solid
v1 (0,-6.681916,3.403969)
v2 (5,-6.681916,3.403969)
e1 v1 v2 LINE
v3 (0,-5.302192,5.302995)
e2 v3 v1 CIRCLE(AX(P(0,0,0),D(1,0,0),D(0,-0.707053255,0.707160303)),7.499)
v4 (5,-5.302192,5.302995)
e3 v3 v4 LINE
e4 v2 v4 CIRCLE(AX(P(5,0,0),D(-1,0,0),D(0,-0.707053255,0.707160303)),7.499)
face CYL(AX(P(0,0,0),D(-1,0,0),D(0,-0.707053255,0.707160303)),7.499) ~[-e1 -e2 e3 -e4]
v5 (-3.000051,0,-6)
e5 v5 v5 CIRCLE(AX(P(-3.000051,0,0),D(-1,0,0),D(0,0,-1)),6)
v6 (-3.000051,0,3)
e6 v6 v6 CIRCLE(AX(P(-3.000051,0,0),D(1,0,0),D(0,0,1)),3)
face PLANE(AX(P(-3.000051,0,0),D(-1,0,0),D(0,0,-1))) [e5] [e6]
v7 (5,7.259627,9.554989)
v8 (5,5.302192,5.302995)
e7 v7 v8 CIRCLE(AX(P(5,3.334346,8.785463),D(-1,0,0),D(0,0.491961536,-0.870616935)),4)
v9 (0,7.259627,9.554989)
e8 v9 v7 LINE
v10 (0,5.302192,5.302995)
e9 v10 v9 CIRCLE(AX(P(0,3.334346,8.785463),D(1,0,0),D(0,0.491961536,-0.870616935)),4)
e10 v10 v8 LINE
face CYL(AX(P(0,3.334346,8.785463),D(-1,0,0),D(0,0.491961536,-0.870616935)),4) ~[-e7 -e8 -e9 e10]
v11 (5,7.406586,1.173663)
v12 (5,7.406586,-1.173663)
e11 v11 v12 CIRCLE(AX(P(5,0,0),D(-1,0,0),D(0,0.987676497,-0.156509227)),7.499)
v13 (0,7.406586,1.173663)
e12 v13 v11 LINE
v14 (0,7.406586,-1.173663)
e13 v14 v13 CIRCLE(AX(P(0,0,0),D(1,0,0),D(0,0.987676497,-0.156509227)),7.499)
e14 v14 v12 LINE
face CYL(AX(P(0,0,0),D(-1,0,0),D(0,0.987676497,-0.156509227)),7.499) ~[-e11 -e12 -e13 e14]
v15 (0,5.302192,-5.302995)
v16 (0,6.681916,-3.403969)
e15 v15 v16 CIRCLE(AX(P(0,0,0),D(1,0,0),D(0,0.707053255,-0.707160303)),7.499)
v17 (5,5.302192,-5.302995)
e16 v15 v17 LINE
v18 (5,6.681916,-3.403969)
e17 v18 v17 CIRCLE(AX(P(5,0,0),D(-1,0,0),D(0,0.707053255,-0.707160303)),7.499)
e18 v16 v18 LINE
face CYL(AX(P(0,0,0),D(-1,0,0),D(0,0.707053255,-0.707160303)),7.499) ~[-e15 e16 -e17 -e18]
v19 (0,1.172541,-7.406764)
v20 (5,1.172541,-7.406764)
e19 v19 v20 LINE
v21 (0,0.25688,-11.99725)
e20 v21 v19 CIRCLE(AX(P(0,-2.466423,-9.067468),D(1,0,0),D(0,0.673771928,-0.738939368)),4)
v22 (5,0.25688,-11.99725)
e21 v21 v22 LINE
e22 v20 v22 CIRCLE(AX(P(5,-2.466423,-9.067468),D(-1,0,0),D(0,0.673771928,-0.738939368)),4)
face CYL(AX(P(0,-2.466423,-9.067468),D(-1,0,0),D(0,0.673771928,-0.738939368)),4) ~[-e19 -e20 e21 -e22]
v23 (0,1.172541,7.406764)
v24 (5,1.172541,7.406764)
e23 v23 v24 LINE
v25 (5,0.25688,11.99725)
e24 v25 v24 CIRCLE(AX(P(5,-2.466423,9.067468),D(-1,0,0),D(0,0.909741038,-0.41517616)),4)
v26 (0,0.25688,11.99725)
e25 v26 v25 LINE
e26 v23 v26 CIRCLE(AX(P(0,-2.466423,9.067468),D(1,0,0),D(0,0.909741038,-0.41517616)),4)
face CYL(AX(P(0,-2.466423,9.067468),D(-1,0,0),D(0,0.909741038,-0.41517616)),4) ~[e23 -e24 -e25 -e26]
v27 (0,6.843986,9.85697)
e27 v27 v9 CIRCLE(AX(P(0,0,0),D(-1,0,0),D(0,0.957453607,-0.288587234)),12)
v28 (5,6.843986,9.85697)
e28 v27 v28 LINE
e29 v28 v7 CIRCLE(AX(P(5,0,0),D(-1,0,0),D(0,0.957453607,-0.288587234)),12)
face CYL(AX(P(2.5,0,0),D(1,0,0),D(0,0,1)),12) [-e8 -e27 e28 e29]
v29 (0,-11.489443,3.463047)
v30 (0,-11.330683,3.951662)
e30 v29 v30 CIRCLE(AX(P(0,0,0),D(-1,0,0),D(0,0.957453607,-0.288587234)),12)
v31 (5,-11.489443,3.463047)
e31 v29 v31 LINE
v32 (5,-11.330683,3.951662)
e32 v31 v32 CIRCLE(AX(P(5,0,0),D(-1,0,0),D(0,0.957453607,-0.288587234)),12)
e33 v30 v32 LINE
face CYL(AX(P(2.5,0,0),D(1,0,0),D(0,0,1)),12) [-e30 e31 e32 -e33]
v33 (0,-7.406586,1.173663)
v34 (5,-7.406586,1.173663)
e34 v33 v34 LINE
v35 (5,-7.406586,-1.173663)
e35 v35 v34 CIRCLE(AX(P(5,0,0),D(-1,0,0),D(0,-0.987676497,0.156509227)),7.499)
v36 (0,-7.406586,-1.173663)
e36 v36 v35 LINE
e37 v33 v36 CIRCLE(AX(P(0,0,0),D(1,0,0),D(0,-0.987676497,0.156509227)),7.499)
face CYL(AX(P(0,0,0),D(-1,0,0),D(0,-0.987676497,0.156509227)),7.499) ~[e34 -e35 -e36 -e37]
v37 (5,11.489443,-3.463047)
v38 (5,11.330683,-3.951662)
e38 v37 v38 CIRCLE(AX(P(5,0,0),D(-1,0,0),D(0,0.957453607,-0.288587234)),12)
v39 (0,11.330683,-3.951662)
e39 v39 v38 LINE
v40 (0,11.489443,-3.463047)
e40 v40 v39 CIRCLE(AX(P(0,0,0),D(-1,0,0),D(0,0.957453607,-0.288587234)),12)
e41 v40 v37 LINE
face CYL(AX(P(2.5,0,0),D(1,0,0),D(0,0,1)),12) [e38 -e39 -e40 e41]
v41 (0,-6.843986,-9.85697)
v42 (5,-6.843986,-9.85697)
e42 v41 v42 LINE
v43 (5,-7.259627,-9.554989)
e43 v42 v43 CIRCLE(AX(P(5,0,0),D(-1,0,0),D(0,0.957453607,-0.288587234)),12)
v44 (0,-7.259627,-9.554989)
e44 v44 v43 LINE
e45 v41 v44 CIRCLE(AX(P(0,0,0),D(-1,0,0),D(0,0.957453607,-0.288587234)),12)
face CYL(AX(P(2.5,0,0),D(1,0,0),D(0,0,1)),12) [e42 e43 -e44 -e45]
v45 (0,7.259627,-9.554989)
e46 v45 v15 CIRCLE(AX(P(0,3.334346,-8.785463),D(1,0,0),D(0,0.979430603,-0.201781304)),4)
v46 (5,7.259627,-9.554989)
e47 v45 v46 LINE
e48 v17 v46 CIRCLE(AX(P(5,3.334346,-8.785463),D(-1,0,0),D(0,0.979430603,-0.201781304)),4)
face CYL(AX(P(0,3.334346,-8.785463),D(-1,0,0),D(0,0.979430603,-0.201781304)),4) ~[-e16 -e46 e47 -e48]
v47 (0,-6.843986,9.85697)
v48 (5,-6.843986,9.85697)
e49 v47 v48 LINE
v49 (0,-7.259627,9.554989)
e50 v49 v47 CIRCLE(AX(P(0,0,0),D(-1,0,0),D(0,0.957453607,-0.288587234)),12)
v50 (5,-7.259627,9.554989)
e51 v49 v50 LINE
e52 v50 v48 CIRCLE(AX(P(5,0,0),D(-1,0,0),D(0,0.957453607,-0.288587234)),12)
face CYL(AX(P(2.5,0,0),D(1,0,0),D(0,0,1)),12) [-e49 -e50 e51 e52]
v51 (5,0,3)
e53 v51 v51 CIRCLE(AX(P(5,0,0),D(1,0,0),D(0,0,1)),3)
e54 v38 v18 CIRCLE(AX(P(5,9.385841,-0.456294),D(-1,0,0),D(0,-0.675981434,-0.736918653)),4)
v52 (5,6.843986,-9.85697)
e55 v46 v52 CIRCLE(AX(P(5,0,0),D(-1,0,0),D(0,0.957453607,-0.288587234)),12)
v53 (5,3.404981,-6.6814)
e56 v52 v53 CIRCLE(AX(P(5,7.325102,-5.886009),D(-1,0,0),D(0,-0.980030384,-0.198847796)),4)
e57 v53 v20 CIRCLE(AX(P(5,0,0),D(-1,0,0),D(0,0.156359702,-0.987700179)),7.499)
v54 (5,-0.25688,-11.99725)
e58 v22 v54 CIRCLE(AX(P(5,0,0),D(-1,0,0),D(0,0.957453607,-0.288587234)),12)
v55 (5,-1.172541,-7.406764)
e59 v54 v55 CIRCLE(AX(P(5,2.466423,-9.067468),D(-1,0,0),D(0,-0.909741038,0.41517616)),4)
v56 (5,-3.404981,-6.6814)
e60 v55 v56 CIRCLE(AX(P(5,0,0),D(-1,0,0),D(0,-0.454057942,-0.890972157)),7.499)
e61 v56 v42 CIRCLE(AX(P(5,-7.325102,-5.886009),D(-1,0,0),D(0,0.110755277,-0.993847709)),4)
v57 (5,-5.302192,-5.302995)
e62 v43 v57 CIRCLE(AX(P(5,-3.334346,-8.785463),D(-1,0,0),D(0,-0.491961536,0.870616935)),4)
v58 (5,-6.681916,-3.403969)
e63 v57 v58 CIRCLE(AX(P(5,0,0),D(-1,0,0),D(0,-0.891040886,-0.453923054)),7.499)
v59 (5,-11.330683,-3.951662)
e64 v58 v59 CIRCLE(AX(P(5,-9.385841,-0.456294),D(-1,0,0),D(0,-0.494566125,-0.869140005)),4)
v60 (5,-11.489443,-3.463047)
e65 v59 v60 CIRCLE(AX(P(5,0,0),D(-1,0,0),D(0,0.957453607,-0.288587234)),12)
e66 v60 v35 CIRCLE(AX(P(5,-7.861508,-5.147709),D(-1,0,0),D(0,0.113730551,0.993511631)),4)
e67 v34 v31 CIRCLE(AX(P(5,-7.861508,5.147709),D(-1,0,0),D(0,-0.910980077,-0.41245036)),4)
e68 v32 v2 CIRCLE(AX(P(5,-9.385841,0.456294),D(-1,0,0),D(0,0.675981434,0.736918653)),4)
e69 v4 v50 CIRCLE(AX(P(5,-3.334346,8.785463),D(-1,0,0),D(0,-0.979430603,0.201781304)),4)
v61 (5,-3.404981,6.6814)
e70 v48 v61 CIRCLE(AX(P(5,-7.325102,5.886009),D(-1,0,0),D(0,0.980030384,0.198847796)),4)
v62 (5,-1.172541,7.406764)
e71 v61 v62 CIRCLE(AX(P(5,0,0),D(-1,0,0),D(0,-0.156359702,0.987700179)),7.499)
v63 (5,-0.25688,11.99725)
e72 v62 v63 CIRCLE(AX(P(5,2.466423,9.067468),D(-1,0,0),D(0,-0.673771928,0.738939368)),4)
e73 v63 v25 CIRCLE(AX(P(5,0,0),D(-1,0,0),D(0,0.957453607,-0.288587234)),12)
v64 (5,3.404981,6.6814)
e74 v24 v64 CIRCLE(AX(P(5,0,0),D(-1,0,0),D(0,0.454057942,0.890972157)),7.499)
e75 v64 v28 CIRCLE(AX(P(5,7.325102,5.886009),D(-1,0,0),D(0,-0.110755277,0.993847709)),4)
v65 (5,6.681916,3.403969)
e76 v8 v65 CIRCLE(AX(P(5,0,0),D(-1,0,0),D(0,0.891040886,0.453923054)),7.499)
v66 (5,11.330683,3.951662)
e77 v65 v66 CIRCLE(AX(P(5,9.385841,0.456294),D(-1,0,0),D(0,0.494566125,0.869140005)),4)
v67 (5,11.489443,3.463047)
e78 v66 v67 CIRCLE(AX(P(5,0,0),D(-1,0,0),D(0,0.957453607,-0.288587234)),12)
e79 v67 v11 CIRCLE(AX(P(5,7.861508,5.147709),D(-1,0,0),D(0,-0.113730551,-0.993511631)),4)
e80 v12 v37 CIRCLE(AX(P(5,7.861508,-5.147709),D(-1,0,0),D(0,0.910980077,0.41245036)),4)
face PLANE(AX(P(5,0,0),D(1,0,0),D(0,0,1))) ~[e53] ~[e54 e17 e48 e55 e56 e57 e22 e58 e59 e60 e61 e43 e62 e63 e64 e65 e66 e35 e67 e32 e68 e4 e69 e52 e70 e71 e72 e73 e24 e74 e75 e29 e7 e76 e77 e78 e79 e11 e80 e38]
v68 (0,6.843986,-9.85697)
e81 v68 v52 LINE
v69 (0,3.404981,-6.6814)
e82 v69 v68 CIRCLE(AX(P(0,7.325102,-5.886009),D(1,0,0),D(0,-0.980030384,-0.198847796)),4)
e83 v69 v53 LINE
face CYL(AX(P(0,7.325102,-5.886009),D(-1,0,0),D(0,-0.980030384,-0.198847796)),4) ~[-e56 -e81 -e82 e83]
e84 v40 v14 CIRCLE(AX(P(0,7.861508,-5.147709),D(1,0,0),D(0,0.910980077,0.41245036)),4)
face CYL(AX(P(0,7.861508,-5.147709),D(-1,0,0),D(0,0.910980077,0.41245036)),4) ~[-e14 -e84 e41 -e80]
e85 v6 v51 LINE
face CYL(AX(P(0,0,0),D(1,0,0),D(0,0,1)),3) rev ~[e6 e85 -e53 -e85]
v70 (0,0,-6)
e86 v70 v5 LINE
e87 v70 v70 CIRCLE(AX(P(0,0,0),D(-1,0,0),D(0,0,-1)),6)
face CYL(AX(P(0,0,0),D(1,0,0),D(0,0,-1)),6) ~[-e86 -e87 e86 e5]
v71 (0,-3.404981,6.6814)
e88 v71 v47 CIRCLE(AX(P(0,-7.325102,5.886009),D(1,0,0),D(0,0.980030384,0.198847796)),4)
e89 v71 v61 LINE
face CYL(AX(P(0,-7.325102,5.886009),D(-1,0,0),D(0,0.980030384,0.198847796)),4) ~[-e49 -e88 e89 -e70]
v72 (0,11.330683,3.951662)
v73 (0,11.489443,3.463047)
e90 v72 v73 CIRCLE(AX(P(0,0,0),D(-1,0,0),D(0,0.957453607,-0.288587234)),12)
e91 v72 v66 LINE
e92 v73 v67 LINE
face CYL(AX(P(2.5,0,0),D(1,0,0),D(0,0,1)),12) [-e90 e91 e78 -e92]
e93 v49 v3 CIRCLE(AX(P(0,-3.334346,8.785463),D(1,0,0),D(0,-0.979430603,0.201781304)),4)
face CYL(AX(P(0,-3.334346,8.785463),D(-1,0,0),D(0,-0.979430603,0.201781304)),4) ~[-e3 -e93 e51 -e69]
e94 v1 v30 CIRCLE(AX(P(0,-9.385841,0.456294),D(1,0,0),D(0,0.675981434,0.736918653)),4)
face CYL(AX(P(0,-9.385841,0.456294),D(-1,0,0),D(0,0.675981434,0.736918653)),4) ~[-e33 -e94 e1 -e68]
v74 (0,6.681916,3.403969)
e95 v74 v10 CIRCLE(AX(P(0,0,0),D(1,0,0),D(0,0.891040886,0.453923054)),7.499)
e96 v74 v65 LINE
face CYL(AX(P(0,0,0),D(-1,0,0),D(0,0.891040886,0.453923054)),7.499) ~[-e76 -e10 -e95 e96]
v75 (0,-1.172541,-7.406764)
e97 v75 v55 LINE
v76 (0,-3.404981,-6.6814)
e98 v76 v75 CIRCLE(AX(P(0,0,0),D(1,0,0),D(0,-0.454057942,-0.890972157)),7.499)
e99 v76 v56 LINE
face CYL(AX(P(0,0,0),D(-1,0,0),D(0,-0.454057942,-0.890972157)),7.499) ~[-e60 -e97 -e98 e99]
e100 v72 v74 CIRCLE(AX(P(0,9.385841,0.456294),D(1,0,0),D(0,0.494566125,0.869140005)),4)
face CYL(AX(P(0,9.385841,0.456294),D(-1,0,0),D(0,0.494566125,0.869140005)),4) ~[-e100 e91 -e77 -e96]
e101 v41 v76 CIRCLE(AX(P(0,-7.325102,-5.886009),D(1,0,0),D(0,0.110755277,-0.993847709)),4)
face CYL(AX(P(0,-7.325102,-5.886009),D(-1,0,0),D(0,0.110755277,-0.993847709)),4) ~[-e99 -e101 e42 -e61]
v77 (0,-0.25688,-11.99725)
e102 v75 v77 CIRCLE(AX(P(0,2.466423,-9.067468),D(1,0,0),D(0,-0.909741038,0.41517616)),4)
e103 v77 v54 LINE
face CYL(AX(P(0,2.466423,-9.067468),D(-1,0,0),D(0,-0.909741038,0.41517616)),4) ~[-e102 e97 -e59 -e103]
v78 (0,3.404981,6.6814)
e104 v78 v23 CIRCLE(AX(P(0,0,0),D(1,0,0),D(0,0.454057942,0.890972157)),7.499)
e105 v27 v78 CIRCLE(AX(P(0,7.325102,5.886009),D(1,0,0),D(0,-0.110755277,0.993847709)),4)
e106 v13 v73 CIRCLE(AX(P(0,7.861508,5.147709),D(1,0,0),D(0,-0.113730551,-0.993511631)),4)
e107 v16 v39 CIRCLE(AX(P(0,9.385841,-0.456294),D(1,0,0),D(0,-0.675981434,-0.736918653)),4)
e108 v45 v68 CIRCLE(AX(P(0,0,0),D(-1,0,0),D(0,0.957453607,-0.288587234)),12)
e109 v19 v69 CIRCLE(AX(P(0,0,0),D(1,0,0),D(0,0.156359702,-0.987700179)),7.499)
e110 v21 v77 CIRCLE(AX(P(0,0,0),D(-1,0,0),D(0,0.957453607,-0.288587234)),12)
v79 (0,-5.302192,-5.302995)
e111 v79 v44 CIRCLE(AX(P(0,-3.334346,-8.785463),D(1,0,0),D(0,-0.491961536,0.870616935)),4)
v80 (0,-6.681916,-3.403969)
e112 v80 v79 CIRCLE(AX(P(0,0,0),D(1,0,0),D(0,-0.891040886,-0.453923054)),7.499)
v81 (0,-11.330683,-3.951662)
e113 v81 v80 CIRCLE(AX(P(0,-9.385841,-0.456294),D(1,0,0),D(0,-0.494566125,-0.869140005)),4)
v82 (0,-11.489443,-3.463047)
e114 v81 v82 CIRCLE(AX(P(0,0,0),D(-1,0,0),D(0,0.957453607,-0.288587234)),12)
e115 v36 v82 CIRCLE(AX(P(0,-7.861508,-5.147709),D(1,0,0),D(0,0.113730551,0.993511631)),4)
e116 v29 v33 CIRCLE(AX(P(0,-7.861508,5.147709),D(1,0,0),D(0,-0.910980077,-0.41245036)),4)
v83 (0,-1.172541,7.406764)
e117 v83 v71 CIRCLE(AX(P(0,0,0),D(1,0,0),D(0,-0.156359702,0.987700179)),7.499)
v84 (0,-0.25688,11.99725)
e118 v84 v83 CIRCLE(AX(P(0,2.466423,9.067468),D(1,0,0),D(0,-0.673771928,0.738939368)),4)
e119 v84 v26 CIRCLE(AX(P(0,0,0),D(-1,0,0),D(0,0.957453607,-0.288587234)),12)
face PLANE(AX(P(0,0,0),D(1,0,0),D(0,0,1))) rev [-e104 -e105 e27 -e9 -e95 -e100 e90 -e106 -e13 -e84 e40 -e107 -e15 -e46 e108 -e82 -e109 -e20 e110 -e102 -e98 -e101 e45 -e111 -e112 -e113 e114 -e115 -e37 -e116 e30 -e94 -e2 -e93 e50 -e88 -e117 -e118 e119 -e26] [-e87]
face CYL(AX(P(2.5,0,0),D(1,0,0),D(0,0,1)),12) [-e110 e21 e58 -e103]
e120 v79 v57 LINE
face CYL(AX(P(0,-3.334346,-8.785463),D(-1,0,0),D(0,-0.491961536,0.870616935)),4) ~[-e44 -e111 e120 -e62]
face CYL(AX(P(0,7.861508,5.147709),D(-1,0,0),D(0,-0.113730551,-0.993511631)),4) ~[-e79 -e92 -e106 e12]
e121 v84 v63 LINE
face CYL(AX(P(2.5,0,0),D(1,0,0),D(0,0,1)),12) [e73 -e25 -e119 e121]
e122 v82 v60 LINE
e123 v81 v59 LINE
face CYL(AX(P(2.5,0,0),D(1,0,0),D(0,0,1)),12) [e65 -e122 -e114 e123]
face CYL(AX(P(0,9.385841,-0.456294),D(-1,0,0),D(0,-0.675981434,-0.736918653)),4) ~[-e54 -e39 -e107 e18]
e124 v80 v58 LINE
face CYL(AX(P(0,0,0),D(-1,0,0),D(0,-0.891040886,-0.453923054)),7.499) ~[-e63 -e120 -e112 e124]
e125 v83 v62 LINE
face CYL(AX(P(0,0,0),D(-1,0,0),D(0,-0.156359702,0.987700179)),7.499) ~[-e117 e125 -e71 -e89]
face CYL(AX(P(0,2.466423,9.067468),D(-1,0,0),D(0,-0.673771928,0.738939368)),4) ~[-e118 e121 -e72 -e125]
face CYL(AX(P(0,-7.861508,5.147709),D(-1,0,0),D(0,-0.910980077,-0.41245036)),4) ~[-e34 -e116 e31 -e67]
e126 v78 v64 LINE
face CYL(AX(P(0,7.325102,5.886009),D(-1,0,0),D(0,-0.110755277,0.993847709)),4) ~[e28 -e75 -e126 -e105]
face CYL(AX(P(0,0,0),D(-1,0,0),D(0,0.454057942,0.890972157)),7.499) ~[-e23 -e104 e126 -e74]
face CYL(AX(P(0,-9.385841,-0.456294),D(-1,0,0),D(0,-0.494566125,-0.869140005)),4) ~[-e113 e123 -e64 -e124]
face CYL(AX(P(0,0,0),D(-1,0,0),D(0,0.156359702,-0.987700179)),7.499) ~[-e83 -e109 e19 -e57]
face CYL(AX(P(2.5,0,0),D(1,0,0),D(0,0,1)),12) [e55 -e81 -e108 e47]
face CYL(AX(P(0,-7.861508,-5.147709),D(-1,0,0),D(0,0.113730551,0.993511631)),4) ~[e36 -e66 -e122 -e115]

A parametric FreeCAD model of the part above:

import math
import FreeCAD as App
import Part
import Sketcher


def add_polygon(sketch, points):
    """Adds a closed chain of lines whose ends are joined by coincident constraints."""
    first, n = sketch.GeometryCount, len(points)
    for a, b in zip(points, points[1:] + points[:1]):
        sketch.addGeometry(Part.LineSegment(App.Vector(*a, 0), App.Vector(*b, 0)), False)
    for i in range(n):
        sketch.addConstraint(Sketcher.Constraint("Coincident", first + i, 2, first + (i + 1) % n, 1))

doc = App.newDocument("Part")
params = doc.addObject("Spreadsheet::Sheet", "Params")
for row, (alias, value) in enumerate([
    ("sketch1_width", "5 mm"),
    ("sketch1_height", "12 mm"),
    ("revolution_angle", "360 deg"),
    ("sketch2_radius", "4 mm"),
    ("sketch3_diameter", "12 mm"),
    ("pad1_length", "3.000051 mm"),
    ("sketch4_diameter", "6 mm"),
    ("pocket2_length", "16.000102 mm"),
], start=1):
    params.set(f"A{row}", alias)
    params.set(f"B{row}", "=" + value)
    params.setAlias(f"B{row}", alias)

body = doc.addObject("PartDesign::Body", "Body")

sketch1 = body.newObject("Sketcher::SketchObject", "Sketch")
sketch1.AttachmentSupport = (doc.getObject("XZ_Plane"), [""])
sketch1.MapMode = "FlatFace"
add_polygon(sketch1, [(0, -12), (0, 0), (5, 0), (5, -12)])
sketch1.addConstraint(Sketcher.Constraint("Vertical", 0))
sketch1.addConstraint(Sketcher.Constraint("Horizontal", 1))
sketch1.addConstraint(Sketcher.Constraint("Vertical", 2))
sketch1.addConstraint(Sketcher.Constraint("Horizontal", 3))
sketch1.addConstraint(Sketcher.Constraint("Coincident", 0, 2, -1, 1))
sketch1.addConstraint(Sketcher.Constraint("DistanceX", 1, 1, 1, 2, 5.0))
sketch1.addConstraint(Sketcher.Constraint("DistanceY", 0, 1, 0, 2, 12.0))
sketch1.setExpression("Constraints[9]", "Params.sketch1_width")
sketch1.setExpression("Constraints[10]", "Params.sketch1_height")
revolution = body.newObject("PartDesign::Revolution", "Revolution")
revolution.Profile = sketch1
revolution.ReferenceAxis = (sketch1, ["H_Axis"])
revolution.setExpression("Angle", "Params.revolution_angle")

sketch2 = body.newObject("Sketcher::SketchObject", "Sketch001")
sketch2.AttachmentSupport = (doc.getObject("YZ_Plane"), [""])
sketch2.MapMode = "FlatFace"
sketch2.addGeometry(Part.ArcOfCircle(Part.Circle(App.Vector(0, 0, 0), App.Vector(0, 0, 1), 7.5), math.radians(-9), math.radians(9)), False)
sketch2.addGeometry(Part.ArcOfCircle(Part.Circle(App.Vector(7.9, -5.1, 0), App.Vector(0, 0, 1), 4), math.radians(24), math.radians(97)), False)
sketch2.addGeometry(Part.ArcOfCircle(Part.Circle(App.Vector(0, 0, 0), App.Vector(0, 0, 1), 12), math.radians(-17), math.radians(17)), False)
sketch2.addGeometry(Part.ArcOfCircle(Part.Circle(App.Vector(7.9, 5.1, 0), App.Vector(0, 0, 1), 4), math.radians(-97), math.radians(-24)), False)
sketch2.addConstraint(Sketcher.Constraint("Coincident", 0, 1, 1, 2))
sketch2.addConstraint(Sketcher.Constraint("Coincident", 1, 1, 2, 1))
sketch2.addConstraint(Sketcher.Constraint("Coincident", 2, 2, 3, 2))
sketch2.addConstraint(Sketcher.Constraint("Coincident", 3, 1, 0, 2))
sketch2.addConstraint(Sketcher.Constraint("Coincident", 0, 3, -1, 1))
sketch2.addConstraint(Sketcher.Constraint("Coincident", 2, 3, -1, 1))
sketch2.addConstraint(Sketcher.Constraint("Equal", 1, 3))
sketch2.addConstraint(Sketcher.Constraint("Symmetric", 1, 3, 3, 3, -1))
sketch2.addConstraint(Sketcher.Constraint("Radius", 1, 4.0))
sketch2.addConstraint(Sketcher.Constraint("Radius", 0, 7.499))
sketch2.addConstraint(Sketcher.Constraint("Radius", 2, 12.0254))
sketch2.addConstraint(Sketcher.Constraint("DistanceY", 1, 3, 1, 1, 1.649801))
sketch2.addConstraint(Sketcher.Constraint("DistanceX", -1, 1, 1, 3, 7.861508))
sketch2.setExpression("Constraints[8]", "Params.sketch2_radius")
pocket1 = body.newObject("PartDesign::Pocket", "Pocket")
pocket1.Profile = sketch2
pocket1.Type = "ThroughAll"
pocket1.Reversed = True
doc.recompute()

polarpattern = body.newObject("PartDesign::PolarPattern", "PolarPattern")
polarpattern.Originals = [pocket1]
polarpattern.Axis = (doc.getObject("X_Axis"), [""])
polarpattern.Angle = 360
polarpattern.Occurrences = 10
body.Tip = polarpattern

sketch3 = body.newObject("Sketcher::SketchObject", "Sketch002")
sketch3.AttachmentSupport = (doc.getObject("YZ_Plane"), [""])
sketch3.MapMode = "FlatFace"
sketch3.addGeometry(Part.Circle(App.Vector(0, 0, 0), App.Vector(0, 0, 1), 6), False)
sketch3.addConstraint(Sketcher.Constraint("Coincident", 0, 3, -1, 1))
sketch3.addConstraint(Sketcher.Constraint("Diameter", 0, 12.0))
sketch3.setExpression("Constraints[1]", "Params.sketch3_diameter")
pad1 = body.newObject("PartDesign::Pad", "Pad")
pad1.Profile = sketch3
pad1.setExpression("Length", "Params.pad1_length")
pad1.Reversed = True

sketch4 = body.newObject("Sketcher::SketchObject", "Sketch003")
sketch4.AttachmentSupport = (doc.getObject("YZ_Plane"), [""])
sketch4.MapMode = "FlatFace"
sketch4.addGeometry(Part.Circle(App.Vector(0, 0, 0), App.Vector(0, 0, 1), 3), False)
sketch4.addConstraint(Sketcher.Constraint("Coincident", 0, 3, -1, 1))
sketch4.addConstraint(Sketcher.Constraint("Diameter", 0, 6.0))
sketch4.setExpression("Constraints[1]", "Params.sketch4_diameter")
pocket2 = body.newObject("PartDesign::Pocket", "Pocket001")
pocket2.Profile = sketch4
pocket2.setExpression("Length", "Params.pocket2_length")
pocket2.Midplane = True

doc.recompute()
